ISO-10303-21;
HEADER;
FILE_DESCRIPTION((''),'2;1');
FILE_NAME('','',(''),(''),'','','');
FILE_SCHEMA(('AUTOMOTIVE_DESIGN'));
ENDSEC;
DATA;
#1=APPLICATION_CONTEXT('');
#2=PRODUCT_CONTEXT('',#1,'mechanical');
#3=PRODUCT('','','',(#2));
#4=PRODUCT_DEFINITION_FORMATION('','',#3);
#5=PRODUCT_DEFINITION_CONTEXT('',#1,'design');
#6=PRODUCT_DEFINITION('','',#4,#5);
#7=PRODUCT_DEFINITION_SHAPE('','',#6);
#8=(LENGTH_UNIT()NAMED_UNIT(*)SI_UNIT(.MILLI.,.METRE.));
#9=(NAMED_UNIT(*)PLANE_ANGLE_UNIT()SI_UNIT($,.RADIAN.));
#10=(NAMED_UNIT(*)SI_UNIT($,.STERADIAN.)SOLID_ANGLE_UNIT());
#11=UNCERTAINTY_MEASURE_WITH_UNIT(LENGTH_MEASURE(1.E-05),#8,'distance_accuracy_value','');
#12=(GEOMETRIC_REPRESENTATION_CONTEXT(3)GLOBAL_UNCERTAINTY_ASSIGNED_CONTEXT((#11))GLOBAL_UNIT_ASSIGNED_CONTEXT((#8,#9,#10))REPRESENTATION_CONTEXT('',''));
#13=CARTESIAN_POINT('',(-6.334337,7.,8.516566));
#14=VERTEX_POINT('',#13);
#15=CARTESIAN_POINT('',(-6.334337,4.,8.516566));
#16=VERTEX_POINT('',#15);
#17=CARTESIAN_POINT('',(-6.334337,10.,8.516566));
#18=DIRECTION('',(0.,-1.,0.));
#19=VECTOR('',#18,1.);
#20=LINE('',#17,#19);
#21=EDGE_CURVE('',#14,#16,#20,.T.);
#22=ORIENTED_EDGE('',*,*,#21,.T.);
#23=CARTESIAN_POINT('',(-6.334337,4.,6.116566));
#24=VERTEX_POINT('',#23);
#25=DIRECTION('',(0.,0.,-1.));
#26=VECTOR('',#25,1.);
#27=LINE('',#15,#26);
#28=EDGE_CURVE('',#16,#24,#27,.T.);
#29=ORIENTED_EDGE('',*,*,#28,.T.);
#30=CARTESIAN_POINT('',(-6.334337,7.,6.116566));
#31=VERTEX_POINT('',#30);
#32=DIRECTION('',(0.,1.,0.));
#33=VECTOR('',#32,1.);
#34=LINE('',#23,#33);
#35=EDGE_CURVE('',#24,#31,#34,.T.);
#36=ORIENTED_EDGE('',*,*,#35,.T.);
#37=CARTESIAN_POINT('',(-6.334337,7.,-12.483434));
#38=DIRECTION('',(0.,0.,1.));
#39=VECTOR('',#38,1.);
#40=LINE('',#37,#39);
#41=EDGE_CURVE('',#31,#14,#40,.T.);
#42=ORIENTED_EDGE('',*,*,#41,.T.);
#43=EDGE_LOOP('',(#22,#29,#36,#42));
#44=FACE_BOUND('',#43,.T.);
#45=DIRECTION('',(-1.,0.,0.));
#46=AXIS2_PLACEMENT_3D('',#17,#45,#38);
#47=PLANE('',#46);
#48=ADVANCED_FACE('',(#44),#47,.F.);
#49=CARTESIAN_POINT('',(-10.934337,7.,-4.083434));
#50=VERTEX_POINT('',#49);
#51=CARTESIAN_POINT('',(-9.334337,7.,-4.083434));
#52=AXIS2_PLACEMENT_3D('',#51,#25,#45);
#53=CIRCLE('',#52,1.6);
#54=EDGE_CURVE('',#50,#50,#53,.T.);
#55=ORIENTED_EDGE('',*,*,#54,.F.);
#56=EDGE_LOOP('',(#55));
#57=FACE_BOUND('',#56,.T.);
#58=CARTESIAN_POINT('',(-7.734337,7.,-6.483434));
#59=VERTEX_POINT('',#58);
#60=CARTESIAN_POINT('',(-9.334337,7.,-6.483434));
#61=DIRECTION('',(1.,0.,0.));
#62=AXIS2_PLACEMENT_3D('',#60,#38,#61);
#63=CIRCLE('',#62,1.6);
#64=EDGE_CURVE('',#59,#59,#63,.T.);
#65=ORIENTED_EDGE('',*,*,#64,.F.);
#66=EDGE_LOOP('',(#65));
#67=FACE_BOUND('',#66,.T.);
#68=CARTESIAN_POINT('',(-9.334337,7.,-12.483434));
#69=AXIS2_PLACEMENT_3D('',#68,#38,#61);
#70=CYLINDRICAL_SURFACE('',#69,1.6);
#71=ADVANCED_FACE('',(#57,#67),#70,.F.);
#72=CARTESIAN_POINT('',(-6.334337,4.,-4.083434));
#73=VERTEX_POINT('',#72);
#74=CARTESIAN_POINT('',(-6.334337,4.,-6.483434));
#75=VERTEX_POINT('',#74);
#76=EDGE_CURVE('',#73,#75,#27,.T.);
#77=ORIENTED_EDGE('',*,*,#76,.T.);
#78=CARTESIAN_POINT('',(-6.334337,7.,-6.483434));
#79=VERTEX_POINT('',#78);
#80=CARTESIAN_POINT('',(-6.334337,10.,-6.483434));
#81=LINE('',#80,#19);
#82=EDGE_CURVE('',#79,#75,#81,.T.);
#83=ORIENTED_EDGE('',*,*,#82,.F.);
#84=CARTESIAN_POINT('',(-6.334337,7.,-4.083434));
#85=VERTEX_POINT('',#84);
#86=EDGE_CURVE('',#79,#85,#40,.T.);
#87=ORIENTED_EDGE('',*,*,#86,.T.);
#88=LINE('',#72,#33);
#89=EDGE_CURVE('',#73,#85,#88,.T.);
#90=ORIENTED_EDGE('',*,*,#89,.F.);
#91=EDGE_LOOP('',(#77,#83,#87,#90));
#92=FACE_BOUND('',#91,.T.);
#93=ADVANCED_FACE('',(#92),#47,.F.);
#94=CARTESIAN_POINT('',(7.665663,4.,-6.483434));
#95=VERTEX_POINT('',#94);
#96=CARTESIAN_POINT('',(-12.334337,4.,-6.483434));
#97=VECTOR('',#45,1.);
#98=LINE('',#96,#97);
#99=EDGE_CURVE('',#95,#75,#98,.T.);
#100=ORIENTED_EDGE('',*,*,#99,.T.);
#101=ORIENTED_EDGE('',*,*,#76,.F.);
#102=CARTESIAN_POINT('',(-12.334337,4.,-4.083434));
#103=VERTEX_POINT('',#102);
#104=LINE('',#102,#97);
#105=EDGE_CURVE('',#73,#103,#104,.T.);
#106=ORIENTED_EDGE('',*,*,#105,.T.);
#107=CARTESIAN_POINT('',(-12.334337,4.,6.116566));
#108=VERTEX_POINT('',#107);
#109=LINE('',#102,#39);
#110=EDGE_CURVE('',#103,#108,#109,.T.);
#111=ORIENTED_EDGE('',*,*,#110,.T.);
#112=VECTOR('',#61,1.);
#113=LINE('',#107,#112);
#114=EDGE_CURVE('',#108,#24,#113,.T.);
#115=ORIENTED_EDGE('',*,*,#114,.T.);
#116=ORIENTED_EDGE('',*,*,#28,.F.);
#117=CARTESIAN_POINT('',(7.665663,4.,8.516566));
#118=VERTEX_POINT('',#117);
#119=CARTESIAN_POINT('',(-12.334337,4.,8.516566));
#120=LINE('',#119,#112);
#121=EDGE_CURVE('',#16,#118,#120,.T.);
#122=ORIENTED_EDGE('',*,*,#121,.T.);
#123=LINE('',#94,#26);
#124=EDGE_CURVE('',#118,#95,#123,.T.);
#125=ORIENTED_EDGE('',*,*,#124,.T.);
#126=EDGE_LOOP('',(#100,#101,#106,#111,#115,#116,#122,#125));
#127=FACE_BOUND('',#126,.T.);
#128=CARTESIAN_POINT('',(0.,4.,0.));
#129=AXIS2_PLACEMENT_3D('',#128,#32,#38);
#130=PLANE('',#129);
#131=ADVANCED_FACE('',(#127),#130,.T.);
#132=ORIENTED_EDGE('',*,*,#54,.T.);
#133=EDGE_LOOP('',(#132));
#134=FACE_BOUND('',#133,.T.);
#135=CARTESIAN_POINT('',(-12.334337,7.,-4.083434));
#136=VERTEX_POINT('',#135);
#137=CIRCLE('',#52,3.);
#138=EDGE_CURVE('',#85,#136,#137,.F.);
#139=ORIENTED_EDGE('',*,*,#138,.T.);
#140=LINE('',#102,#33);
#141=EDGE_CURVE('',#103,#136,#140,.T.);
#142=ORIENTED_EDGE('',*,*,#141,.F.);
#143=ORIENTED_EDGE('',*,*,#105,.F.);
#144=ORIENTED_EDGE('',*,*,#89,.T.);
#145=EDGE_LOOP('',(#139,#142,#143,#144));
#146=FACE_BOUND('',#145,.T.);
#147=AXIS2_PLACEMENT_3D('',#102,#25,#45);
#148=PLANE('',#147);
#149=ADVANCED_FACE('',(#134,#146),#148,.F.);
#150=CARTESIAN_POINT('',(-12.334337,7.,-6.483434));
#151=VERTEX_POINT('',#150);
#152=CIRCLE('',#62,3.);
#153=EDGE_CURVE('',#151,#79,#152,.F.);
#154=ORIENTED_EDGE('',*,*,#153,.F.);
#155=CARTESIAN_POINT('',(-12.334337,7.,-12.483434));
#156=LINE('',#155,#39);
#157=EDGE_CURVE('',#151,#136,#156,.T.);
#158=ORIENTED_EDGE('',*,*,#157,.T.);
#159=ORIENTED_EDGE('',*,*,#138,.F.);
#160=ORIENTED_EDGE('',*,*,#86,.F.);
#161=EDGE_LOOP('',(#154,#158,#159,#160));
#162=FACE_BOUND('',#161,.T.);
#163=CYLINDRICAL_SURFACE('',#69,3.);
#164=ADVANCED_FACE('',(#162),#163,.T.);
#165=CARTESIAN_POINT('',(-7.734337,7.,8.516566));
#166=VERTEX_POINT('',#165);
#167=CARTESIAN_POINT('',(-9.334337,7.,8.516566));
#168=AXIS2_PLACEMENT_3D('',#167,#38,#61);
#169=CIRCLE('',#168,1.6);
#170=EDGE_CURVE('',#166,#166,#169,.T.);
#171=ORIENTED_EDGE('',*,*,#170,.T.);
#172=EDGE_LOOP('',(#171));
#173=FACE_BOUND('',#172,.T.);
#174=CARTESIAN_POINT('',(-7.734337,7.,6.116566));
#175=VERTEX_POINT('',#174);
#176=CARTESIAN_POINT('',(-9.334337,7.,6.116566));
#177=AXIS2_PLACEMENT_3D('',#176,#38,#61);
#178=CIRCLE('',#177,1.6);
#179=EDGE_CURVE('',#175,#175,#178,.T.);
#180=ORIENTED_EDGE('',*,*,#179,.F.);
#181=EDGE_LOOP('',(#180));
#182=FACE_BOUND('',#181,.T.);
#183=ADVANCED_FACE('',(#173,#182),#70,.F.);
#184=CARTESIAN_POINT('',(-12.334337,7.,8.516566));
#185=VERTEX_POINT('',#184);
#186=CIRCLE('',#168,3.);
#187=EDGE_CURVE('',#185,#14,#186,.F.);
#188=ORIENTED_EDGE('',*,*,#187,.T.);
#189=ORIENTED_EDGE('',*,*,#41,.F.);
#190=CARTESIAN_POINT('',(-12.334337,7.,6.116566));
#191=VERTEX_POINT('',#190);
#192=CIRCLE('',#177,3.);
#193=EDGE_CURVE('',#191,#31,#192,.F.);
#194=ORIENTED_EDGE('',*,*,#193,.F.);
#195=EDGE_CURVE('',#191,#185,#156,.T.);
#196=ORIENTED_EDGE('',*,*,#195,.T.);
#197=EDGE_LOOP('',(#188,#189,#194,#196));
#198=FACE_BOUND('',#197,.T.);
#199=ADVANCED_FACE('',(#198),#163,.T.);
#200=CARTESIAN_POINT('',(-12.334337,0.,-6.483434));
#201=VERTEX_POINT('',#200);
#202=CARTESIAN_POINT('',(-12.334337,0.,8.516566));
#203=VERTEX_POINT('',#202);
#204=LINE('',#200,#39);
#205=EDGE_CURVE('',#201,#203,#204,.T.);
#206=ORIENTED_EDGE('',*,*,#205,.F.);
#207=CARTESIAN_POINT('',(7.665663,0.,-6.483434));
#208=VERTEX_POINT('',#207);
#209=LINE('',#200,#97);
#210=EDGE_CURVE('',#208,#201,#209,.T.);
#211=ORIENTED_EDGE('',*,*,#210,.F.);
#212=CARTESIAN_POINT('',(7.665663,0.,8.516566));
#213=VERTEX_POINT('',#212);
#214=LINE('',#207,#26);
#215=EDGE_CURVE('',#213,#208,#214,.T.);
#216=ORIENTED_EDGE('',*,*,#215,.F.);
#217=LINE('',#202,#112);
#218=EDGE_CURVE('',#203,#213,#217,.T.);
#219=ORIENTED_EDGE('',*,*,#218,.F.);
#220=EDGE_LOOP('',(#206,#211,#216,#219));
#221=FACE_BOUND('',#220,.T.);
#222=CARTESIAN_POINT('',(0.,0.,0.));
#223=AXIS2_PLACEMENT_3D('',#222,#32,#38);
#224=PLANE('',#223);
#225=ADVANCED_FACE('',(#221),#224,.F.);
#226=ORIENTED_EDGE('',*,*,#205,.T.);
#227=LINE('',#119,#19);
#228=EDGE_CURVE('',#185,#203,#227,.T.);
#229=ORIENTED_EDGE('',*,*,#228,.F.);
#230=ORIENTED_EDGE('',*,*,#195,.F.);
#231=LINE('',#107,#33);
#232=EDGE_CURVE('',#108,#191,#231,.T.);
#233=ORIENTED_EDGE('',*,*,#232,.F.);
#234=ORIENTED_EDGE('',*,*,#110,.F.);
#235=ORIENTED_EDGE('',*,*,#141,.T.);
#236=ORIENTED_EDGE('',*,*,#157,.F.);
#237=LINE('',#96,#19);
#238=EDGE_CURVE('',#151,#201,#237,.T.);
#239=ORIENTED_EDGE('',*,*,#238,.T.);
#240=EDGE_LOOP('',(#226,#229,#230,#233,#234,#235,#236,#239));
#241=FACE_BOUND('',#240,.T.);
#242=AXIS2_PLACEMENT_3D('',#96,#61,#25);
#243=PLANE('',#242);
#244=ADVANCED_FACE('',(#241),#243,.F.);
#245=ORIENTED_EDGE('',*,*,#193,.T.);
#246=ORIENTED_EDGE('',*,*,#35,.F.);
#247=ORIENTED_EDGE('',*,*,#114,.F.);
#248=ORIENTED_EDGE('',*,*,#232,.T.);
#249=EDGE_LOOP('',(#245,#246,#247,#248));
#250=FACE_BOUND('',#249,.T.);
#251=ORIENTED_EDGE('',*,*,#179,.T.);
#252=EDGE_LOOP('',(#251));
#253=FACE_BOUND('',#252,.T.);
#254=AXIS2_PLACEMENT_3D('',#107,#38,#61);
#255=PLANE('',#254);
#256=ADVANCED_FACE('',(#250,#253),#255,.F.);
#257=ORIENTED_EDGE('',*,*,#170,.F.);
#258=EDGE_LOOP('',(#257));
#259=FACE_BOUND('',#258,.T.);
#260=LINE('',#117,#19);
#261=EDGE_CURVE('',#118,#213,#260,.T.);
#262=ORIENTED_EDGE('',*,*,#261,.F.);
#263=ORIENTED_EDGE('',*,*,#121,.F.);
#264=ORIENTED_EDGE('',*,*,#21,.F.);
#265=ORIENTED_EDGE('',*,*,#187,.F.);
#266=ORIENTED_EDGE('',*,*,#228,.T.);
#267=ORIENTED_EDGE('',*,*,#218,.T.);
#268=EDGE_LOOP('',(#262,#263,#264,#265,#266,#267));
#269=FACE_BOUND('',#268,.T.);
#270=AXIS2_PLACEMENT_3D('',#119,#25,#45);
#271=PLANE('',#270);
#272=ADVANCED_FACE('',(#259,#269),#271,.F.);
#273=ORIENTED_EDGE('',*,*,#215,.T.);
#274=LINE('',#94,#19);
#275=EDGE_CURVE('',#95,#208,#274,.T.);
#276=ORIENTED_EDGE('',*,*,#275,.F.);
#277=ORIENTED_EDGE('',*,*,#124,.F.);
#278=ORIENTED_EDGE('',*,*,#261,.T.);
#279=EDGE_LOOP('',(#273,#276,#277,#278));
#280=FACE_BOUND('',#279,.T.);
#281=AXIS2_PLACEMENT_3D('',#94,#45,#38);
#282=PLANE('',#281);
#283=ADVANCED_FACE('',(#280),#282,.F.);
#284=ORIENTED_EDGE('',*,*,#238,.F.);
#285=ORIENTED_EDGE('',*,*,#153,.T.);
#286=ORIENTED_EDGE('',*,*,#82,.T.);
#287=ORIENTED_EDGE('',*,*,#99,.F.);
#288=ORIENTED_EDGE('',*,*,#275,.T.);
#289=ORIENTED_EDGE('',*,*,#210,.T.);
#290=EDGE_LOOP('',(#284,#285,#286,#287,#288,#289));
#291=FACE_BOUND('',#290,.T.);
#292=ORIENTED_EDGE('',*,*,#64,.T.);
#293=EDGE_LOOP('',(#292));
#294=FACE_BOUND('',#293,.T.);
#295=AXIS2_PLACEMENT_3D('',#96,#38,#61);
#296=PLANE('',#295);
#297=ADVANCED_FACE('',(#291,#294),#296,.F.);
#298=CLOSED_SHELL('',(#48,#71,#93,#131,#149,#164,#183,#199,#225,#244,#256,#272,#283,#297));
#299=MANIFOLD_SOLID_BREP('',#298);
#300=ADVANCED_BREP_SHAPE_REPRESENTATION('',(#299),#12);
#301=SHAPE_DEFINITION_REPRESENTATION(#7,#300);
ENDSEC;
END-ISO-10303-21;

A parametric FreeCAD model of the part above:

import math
import FreeCAD as App
import Part
import Sketcher

V = App.Vector
Q = App.Units.Quantity


def add_polygon(sketch, points):
    """Adds a closed chain of lines whose ends are joined by coincident constraints."""
    first, n = sketch.GeometryCount, len(points)
    for a, b in zip(points, points[1:] + points[:1]):
        sketch.addGeometry(Part.LineSegment(App.Vector(*a, 0), App.Vector(*b, 0)), False)
    for i in range(n):
        sketch.addConstraint(Sketcher.Constraint("Coincident", first + i, 2, first + (i + 1) % n, 1))

doc = App.newDocument("Part")
body = doc.addObject("PartDesign::Body", "Body")

# Sketch on XZ plane
sketch1 = body.newObject("Sketcher::SketchObject", "Sketch")
sketch1.AttachmentSupport = (doc.getObject("XZ_Plane"), [""])
sketch1.MapMode = "FlatFace"
add_polygon(sketch1, [(-12.334337, -6.483434), (-12.334337, 8.516566), (7.665663, 8.516566), (7.665663, -6.483434)])  # lines 0-3
sketch1.addConstraint(Sketcher.Constraint("Vertical", 0))
sketch1.addConstraint(Sketcher.Constraint("Horizontal", 1))
sketch1.addConstraint(Sketcher.Constraint("Vertical", 2))
sketch1.addConstraint(Sketcher.Constraint("Horizontal", 3))
sketch1.addConstraint(Sketcher.Constraint("DistanceX", 1, 1, 1, 2, Q("20 mm")))
sketch1.addConstraint(Sketcher.Constraint("DistanceY", 0, 1, 0, 2, Q("15 mm")))
sketch1.addConstraint(Sketcher.Constraint("DistanceX", 0, 2, -1, 1, Q("12.334337 mm")))
sketch1.addConstraint(Sketcher.Constraint("DistanceY", -1, 1, 0, 2, Q("8.516566 mm")))
pad1 = body.newObject("PartDesign::Pad", "Pad")
pad1.Profile = sketch1
pad1.Length = 4
pad1.Reversed = True

# Sketch on XZ plane
sketch2 = body.newObject("Sketcher::SketchObject", "Sketch001")
sketch2.AttachmentSupport = (doc.getObject("XZ_Plane"), [""])
sketch2.MapMode = "FlatFace"
sketch2.AttachmentOffset = App.Placement(V(0, 0, -4), App.Rotation())
add_polygon(sketch2, [(-12.334337, -6.483434), (-12.334337, 8.516566), (-6.334337, 8.516566), (-6.334337, -6.483434)])  # lines 0-3
sketch2.addConstraint(Sketcher.Constraint("Vertical", 0))
sketch2.addConstraint(Sketcher.Constraint("Horizontal", 1))
sketch2.addConstraint(Sketcher.Constraint("Vertical", 2))
sketch2.addConstraint(Sketcher.Constraint("Horizontal", 3))
sketch2.addConstraint(Sketcher.Constraint("DistanceX", 1, 1, 1, 2, Q("6 mm")))
sketch2.addConstraint(Sketcher.Constraint("DistanceY", 0, 1, 0, 2, Q("15 mm")))
sketch2.addConstraint(Sketcher.Constraint("DistanceX", 0, 2, -1, 1, Q("12.334337 mm")))
sketch2.addConstraint(Sketcher.Constraint("DistanceY", -1, 1, 0, 2, Q("8.516566 mm")))
pad2 = body.newObject("PartDesign::Pad", "Pad001")
pad2.Profile = sketch2
pad2.Length = 6
pad2.Reversed = True

# Sketch on XZ plane
sketch3 = body.newObject("Sketcher::SketchObject", "Sketch002")
sketch3.AttachmentSupport = (doc.getObject("XZ_Plane"), [""])
sketch3.MapMode = "FlatFace"
sketch3.AttachmentOffset = App.Placement(V(0, 0, -10), App.Rotation())
add_polygon(sketch3, [(-12.334337, -4.083434), (-12.334337, 6.116566), (-6.334337, 6.116566), (-6.334337, -4.083434)])  # lines 0-3
sketch3.addConstraint(Sketcher.Constraint("Vertical", 0))
sketch3.addConstraint(Sketcher.Constraint("Horizontal", 1))
sketch3.addConstraint(Sketcher.Constraint("Vertical", 2))
sketch3.addConstraint(Sketcher.Constraint("Horizontal", 3))
sketch3.addConstraint(Sketcher.Constraint("DistanceX", 1, 1, 1, 2, Q("6 mm")))
sketch3.addConstraint(Sketcher.Constraint("DistanceY", 0, 1, 0, 2, Q("10.2 mm")))
sketch3.addConstraint(Sketcher.Constraint("DistanceX", 0, 2, -1, 1, Q("12.334337 mm")))
sketch3.addConstraint(Sketcher.Constraint("DistanceY", -1, 1, 0, 2, Q("6.116566 mm")))
pocket1 = body.newObject("PartDesign::Pocket", "Pocket")
pocket1.Profile = sketch3
pocket1.Length = 6
pocket1.Reversed = True

# Sketch on XY plane
sketch4 = body.newObject("Sketcher::SketchObject", "Sketch003")
sketch4.AttachmentSupport = (doc.getObject("XY_Plane"), [""])
sketch4.MapMode = "FlatFace"
sketch4.AttachmentOffset = App.Placement(V(0, 0, 8.516566), App.Rotation())
sketch4.addGeometry(Part.Circle(V(-9.334337, 7, 0), V(0, 0, 1), 1.6), False)
sketch4.addGeometry(Part.LineSegment(V(-9.334337, 10, 0), V(-12.334337, 10, 0)), False)
sketch4.addGeometry(Part.LineSegment(V(-12.334337, 10, 0), V(-12.334337, 7, 0)), False)
sketch4.addGeometry(Part.ArcOfCircle(Part.Circle(V(-9.334337, 7, 0), V(0, 0, 1), 3), math.radians(90), math.radians(180)), False)
sketch4.addGeometry(Part.LineSegment(V(-6.334337, 10, 0), V(-9.334337, 10, 0)), False)
sketch4.addGeometry(Part.ArcOfCircle(Part.Circle(V(-9.334337, 7, 0), V(0, 0, 1), 3), math.radians(0), math.radians(90)), False)
sketch4.addGeometry(Part.LineSegment(V(-6.334337, 7, 0), V(-6.334337, 10, 0)), False)
sketch4.addConstraint(Sketcher.Constraint("Coincident", 1, 2, 2, 1))
sketch4.addConstraint(Sketcher.Constraint("Tangent", 2, 2, 3, 2))
sketch4.addConstraint(Sketcher.Constraint("Tangent", 3, 1, 1, 1))
sketch4.addConstraint(Sketcher.Constraint("Tangent", 4, 2, 5, 2))
sketch4.addConstraint(Sketcher.Constraint("Tangent", 5, 1, 6, 1))
sketch4.addConstraint(Sketcher.Constraint("Coincident", 6, 2, 4, 1))
sketch4.addConstraint(Sketcher.Constraint("Horizontal", 1))
sketch4.addConstraint(Sketcher.Constraint("Vertical", 2))
sketch4.addConstraint(Sketcher.Constraint("Horizontal", 4))
sketch4.addConstraint(Sketcher.Constraint("Vertical", 6))
sketch4.addConstraint(Sketcher.Constraint("Coincident", 3, 3, 0, 3))
sketch4.addConstraint(Sketcher.Constraint("Coincident", 5, 3, 0, 3))
sketch4.addConstraint(Sketcher.Constraint("Equal", 3, 5))
sketch4.addConstraint(Sketcher.Constraint("Radius", 3, Q("3 mm")))
sketch4.addConstraint(Sketcher.Constraint("Diameter", 0, Q("3.2 mm")))
sketch4.addConstraint(Sketcher.Constraint("DistanceY", -1, 1, 0, 3, Q("7 mm")))
sketch4.addConstraint(Sketcher.Constraint("DistanceX", 0, 3, -1, 1, Q("9.334337 mm")))
pocket2 = body.newObject("PartDesign::Pocket", "Pocket001")
pocket2.Profile = sketch4
pocket2.Length = 21

doc.recompute()
